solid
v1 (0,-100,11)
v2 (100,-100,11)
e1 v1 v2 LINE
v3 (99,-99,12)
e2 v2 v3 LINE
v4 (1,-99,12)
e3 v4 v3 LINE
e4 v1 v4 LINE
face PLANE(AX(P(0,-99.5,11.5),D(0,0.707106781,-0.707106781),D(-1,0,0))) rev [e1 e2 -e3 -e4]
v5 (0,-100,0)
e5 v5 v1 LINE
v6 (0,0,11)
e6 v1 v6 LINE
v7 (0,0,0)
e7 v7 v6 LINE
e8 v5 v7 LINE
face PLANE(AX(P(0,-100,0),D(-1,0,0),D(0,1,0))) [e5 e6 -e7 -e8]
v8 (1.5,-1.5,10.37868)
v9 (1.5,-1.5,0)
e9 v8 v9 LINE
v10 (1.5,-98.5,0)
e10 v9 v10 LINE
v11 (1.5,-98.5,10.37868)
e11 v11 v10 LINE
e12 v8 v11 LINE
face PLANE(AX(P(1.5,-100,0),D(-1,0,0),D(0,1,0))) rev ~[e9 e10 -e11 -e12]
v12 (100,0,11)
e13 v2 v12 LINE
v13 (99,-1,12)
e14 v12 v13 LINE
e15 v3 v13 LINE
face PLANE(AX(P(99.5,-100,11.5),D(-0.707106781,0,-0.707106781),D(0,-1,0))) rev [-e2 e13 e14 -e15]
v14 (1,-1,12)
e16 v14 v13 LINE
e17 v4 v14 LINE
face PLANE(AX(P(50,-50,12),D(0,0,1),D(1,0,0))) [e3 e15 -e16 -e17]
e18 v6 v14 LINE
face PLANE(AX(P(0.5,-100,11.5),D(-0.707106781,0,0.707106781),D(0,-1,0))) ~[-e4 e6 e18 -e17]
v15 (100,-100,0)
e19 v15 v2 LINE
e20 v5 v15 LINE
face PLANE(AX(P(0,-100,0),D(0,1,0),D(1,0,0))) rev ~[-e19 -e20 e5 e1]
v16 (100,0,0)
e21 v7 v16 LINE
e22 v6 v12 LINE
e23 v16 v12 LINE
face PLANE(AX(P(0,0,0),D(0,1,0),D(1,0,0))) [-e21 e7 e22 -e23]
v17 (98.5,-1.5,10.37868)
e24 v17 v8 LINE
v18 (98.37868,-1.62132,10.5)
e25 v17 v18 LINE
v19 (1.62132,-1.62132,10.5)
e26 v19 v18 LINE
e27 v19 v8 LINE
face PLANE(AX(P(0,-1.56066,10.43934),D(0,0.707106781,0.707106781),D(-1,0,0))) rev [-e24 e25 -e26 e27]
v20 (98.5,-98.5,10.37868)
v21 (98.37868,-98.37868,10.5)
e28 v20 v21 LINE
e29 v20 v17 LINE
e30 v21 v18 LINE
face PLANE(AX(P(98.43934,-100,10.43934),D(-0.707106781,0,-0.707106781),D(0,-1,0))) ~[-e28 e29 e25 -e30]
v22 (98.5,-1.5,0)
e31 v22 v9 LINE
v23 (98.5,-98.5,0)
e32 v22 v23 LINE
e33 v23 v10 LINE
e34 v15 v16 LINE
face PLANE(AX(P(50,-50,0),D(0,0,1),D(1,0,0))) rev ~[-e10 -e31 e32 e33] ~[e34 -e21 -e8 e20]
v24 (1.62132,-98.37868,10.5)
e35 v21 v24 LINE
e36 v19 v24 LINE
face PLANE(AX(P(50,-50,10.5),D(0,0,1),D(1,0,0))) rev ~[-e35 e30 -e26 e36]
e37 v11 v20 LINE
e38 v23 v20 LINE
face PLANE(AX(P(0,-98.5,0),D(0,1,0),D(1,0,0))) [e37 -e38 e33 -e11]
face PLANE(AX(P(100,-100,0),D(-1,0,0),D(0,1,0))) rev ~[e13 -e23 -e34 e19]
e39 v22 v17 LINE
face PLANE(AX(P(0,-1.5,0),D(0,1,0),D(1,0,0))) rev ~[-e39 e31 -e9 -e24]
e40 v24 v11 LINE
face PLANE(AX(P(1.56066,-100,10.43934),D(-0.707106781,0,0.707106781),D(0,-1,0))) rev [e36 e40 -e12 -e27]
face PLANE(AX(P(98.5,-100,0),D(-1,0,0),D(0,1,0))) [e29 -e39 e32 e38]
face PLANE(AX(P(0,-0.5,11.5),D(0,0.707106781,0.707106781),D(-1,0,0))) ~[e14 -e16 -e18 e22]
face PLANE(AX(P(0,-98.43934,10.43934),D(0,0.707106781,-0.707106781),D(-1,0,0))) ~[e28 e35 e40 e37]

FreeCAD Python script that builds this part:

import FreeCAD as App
import Part
import Sketcher
from FreeCAD import Vector
Q = App.Units.Quantity


def edges_at(feature, points):
    """Names of the edges that pass closest to the given points."""
    edges = feature.Shape.Edges
    near = lambda p: min(range(len(edges)), key=lambda i: edges[i].distToShape(Part.Vertex(*p))[0])
    return sorted({f"Edge{near(p) + 1}" for p in points})


def faces_at(feature, points):
    """Names of the faces that lie closest to the given points."""
    faces = feature.Shape.Faces
    near = lambda p: min(range(len(faces)), key=lambda i: faces[i].distToShape(Part.Vertex(*p))[0])
    return sorted({f"Face{near(p) + 1}" for p in points})

doc = App.newDocument("Part")
params = doc.addObject("Spreadsheet::Sheet", "Params")
for row, (alias, value) in enumerate([
    ("sketch1_width", "100 mm"),
    ("pad1_length", "12 mm"),
    ("chamfer_size", "1 mm"),
    ("thickness_wall", "1.5 mm"),
], start=1):
    params.set(f"A{row}", alias)
    params.set(f"B{row}", "=" + value)
    params.setAlias(f"B{row}", alias)

body = doc.addObject("PartDesign::Body", "Body")

# Sketch on XY plane
sketch1 = body.newObject("Sketcher::SketchObject", "Sketch")
sketch1.AttachmentSupport = (doc.getObject("XY_Plane"), [""])
sketch1.MapMode = "FlatFace"
sketch1.addGeometry(Part.LineSegment(Vector(0, 0, 0), Vector(0, -100, 0)), False)
sketch1.addGeometry(Part.LineSegment(Vector(0, -100, 0), Vector(100, -100, 0)), False)
sketch1.addGeometry(Part.LineSegment(Vector(100, -100, 0), Vector(100, 0, 0)), False)
sketch1.addGeometry(Part.LineSegment(Vector(100, 0, 0), Vector(0, 0, 0)), False)
sketch1.addConstraint(Sketcher.Constraint("Coincident", 0, 2, 1, 1))
sketch1.addConstraint(Sketcher.Constraint("Coincident", 1, 2, 2, 1))
sketch1.addConstraint(Sketcher.Constraint("Coincident", 2, 2, 3, 1))
sketch1.addConstraint(Sketcher.Constraint("Coincident", 3, 2, 0, 1))
sketch1.addConstraint(Sketcher.Constraint("Vertical", 0))
sketch1.addConstraint(Sketcher.Constraint("Horizontal", 1))
sketch1.addConstraint(Sketcher.Constraint("Vertical", 2))
sketch1.addConstraint(Sketcher.Constraint("Horizontal", 3))
sketch1.addConstraint(Sketcher.Constraint("Coincident", 3, 2, -1, 1))
sketch1.addConstraint(Sketcher.Constraint("Equal", 3, 0))
sketch1.addConstraint(Sketcher.Constraint("DistanceX", 1, 1, 1, 2, Q("100 mm")))
sketch1.setExpression("Constraints[10]", "Params.sketch1_width")
pad1 = body.newObject("PartDesign::Pad", "Pad")
pad1.Profile = sketch1
pad1.setExpression("Length", "Params.pad1_length")
doc.recompute()

chamfer = body.newObject("PartDesign::Chamfer", "Chamfer")
chamfer.Base = (pad1, edges_at(pad1, [
    (0, -50, 12),
    (50, -100, 12),
    (100, -50, 12),
    (50, 0, 12),
]))
chamfer.setExpression("Size", "Params.chamfer_size")
doc.recompute()

thickness = body.newObject("PartDesign::Thickness", "Thickness")
thickness.Base = (chamfer, faces_at(chamfer, [(50, -50, 0)]))
thickness.setExpression("Value", "Params.thickness_wall")
thickness.Reversed = True
thickness.Join = "Intersection"

doc.recompute()
